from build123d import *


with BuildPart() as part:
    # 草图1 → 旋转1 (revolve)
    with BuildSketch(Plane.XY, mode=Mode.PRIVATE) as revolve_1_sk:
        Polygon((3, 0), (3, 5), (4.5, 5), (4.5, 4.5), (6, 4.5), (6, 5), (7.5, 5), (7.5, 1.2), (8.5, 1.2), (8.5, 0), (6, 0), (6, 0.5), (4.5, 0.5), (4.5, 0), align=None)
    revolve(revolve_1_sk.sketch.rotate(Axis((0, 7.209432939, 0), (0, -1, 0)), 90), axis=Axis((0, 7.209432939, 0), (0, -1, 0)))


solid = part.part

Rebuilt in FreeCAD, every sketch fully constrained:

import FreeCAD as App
import Part
import Sketcher
from FreeCAD import Vector

doc = App.newDocument("Part")
body = doc.addObject("PartDesign::Body", "Body")

# Sketch on XY plane
sketch1 = doc.addObject("Sketcher::SketchObject", "Sketch")
body.addObject(sketch1)
sketch1.AttachmentSupport = (doc.XY_Plane, [""])
sketch1.MapMode = "FlatFace"
sketch1.addGeometry(Part.LineSegment(Vector(3, 5, 0), Vector(3, 0, 0)), False)
sketch1.addGeometry(Part.LineSegment(Vector(3, 0, 0), Vector(4.5, 0, 0)), False)
sketch1.addGeometry(Part.LineSegment(Vector(4.5, 0, 0), Vector(4.5, 0.5, 0)), False)
sketch1.addGeometry(Part.LineSegment(Vector(4.5, 0.5, 0), Vector(6, 0.5, 0)), False)
sketch1.addGeometry(Part.LineSegment(Vector(6, 0.5, 0), Vector(6, 0, 0)), False)
sketch1.addGeometry(Part.LineSegment(Vector(6, 0, 0), Vector(8.5, 0, 0)), False)
sketch1.addGeometry(Part.LineSegment(Vector(8.5, 0, 0), Vector(8.5, 1.2, 0)), False)
sketch1.addGeometry(Part.LineSegment(Vector(8.5, 1.2, 0), Vector(7.5, 1.2, 0)), False)
sketch1.addGeometry(Part.LineSegment(Vector(7.5, 1.2, 0), Vector(7.5, 5, 0)), False)
sketch1.addGeometry(Part.LineSegment(Vector(7.5, 5, 0), Vector(6, 5, 0)), False)
sketch1.addGeometry(Part.LineSegment(Vector(6, 5, 0), Vector(6, 4.5, 0)), False)
sketch1.addGeometry(Part.LineSegment(Vector(6, 4.5, 0), Vector(4.5, 4.5, 0)), False)
sketch1.addGeometry(Part.LineSegment(Vector(4.5, 4.5, 0), Vector(4.5, 5, 0)), False)
sketch1.addGeometry(Part.LineSegment(Vector(4.5, 5, 0), Vector(3, 5, 0)), False)
sketch1.addConstraint(Sketcher.Constraint("Coincident", 0, 2, 1, 1))
sketch1.addConstraint(Sketcher.Constraint("Coincident", 1, 2, 2, 1))
sketch1.addConstraint(Sketcher.Constraint("Coincident", 2, 2, 3, 1))
sketch1.addConstraint(Sketcher.Constraint("Coincident", 3, 2, 4, 1))
sketch1.addConstraint(Sketcher.Constraint("Coincident", 4, 2, 5, 1))
sketch1.addConstraint(Sketcher.Constraint("Coincident", 5, 2, 6, 1))
sketch1.addConstraint(Sketcher.Constraint("Coincident", 6, 2, 7, 1))
sketch1.addConstraint(Sketcher.Constraint("Coincident", 7, 2, 8, 1))
sketch1.addConstraint(Sketcher.Constraint("Coincident", 8, 2, 9, 1))
sketch1.addConstraint(Sketcher.Constraint("Coincident", 9, 2, 10, 1))
sketch1.addConstraint(Sketcher.Constraint("Coincident", 10, 2, 11, 1))
sketch1.addConstraint(Sketcher.Constraint("Coincident", 11, 2, 12, 1))
sketch1.addConstraint(Sketcher.Constraint("Coincident", 12, 2, 13, 1))
sketch1.addConstraint(Sketcher.Constraint("Coincident", 13, 2, 0, 1))
sketch1.addConstraint(Sketcher.Constraint("Vertical", 0))
sketch1.addConstraint(Sketcher.Constraint("Horizontal", 1))
sketch1.addConstraint(Sketcher.Constraint("Vertical", 2))
sketch1.addConstraint(Sketcher.Constraint("Horizontal", 3))
sketch1.addConstraint(Sketcher.Constraint("Vertical", 4))
sketch1.addConstraint(Sketcher.Constraint("Horizontal", 5))
sketch1.addConstraint(Sketcher.Constraint("Vertical", 6))
sketch1.addConstraint(Sketcher.Constraint("Horizontal", 7))
sketch1.addConstraint(Sketcher.Constraint("Vertical", 8))
sketch1.addConstraint(Sketcher.Constraint("Horizontal", 9))
sketch1.addConstraint(Sketcher.Constraint("Vertical", 10))
sketch1.addConstraint(Sketcher.Constraint("Horizontal", 11))
sketch1.addConstraint(Sketcher.Constraint("Vertical", 12))
sketch1.addConstraint(Sketcher.Constraint("Horizontal", 13))
sketch1.addConstraint(Sketcher.Constraint("PointOnObject", 0, 2, -1))
sketch1.addConstraint(Sketcher.Constraint("PointOnObject", 4, 2, -1))
sketch1.addConstraint(Sketcher.Constraint("Horizontal", 9, 2, 12, 2))
sketch1.addConstraint(Sketcher.Constraint("Vertical", 4, 2, 9, 2))
sketch1.addConstraint(Sketcher.Constraint("Vertical", 2, 2, 11, 2))
sketch1.addConstraint(Sketcher.Constraint("Equal", 1, 3))
sketch1.addConstraint(Sketcher.Constraint("Equal", 3, 9))
sketch1.addConstraint(Sketcher.Constraint("Equal", 4, 10))
sketch1.addConstraint(Sketcher.Constraint("DistanceX", 7, 2, 7, 1, 1.0))
sketch1.addConstraint(Sketcher.Constraint("DistanceY", 0, 2, 0, 1, 5.0))
sketch1.addConstraint(Sketcher.Constraint("DistanceX", 1, 1, 1, 2, 1.5))
sketch1.addConstraint(Sketcher.Constraint("DistanceY", 2, 1, 2, 2, 0.5))
sketch1.addConstraint(Sketcher.Constraint("DistanceY", 6, 1, 6, 2, 1.2))
sketch1.addConstraint(Sketcher.Constraint("DistanceX", -1, 1, 0, 2, 3.0))
revolution = doc.addObject("PartDesign::Revolution", "Revolution")
body.addObject(revolution)
revolution.Profile = sketch1
revolution.ReferenceAxis = (sketch1, ["V_Axis"])
revolution.Angle = 360

doc.recompute()
